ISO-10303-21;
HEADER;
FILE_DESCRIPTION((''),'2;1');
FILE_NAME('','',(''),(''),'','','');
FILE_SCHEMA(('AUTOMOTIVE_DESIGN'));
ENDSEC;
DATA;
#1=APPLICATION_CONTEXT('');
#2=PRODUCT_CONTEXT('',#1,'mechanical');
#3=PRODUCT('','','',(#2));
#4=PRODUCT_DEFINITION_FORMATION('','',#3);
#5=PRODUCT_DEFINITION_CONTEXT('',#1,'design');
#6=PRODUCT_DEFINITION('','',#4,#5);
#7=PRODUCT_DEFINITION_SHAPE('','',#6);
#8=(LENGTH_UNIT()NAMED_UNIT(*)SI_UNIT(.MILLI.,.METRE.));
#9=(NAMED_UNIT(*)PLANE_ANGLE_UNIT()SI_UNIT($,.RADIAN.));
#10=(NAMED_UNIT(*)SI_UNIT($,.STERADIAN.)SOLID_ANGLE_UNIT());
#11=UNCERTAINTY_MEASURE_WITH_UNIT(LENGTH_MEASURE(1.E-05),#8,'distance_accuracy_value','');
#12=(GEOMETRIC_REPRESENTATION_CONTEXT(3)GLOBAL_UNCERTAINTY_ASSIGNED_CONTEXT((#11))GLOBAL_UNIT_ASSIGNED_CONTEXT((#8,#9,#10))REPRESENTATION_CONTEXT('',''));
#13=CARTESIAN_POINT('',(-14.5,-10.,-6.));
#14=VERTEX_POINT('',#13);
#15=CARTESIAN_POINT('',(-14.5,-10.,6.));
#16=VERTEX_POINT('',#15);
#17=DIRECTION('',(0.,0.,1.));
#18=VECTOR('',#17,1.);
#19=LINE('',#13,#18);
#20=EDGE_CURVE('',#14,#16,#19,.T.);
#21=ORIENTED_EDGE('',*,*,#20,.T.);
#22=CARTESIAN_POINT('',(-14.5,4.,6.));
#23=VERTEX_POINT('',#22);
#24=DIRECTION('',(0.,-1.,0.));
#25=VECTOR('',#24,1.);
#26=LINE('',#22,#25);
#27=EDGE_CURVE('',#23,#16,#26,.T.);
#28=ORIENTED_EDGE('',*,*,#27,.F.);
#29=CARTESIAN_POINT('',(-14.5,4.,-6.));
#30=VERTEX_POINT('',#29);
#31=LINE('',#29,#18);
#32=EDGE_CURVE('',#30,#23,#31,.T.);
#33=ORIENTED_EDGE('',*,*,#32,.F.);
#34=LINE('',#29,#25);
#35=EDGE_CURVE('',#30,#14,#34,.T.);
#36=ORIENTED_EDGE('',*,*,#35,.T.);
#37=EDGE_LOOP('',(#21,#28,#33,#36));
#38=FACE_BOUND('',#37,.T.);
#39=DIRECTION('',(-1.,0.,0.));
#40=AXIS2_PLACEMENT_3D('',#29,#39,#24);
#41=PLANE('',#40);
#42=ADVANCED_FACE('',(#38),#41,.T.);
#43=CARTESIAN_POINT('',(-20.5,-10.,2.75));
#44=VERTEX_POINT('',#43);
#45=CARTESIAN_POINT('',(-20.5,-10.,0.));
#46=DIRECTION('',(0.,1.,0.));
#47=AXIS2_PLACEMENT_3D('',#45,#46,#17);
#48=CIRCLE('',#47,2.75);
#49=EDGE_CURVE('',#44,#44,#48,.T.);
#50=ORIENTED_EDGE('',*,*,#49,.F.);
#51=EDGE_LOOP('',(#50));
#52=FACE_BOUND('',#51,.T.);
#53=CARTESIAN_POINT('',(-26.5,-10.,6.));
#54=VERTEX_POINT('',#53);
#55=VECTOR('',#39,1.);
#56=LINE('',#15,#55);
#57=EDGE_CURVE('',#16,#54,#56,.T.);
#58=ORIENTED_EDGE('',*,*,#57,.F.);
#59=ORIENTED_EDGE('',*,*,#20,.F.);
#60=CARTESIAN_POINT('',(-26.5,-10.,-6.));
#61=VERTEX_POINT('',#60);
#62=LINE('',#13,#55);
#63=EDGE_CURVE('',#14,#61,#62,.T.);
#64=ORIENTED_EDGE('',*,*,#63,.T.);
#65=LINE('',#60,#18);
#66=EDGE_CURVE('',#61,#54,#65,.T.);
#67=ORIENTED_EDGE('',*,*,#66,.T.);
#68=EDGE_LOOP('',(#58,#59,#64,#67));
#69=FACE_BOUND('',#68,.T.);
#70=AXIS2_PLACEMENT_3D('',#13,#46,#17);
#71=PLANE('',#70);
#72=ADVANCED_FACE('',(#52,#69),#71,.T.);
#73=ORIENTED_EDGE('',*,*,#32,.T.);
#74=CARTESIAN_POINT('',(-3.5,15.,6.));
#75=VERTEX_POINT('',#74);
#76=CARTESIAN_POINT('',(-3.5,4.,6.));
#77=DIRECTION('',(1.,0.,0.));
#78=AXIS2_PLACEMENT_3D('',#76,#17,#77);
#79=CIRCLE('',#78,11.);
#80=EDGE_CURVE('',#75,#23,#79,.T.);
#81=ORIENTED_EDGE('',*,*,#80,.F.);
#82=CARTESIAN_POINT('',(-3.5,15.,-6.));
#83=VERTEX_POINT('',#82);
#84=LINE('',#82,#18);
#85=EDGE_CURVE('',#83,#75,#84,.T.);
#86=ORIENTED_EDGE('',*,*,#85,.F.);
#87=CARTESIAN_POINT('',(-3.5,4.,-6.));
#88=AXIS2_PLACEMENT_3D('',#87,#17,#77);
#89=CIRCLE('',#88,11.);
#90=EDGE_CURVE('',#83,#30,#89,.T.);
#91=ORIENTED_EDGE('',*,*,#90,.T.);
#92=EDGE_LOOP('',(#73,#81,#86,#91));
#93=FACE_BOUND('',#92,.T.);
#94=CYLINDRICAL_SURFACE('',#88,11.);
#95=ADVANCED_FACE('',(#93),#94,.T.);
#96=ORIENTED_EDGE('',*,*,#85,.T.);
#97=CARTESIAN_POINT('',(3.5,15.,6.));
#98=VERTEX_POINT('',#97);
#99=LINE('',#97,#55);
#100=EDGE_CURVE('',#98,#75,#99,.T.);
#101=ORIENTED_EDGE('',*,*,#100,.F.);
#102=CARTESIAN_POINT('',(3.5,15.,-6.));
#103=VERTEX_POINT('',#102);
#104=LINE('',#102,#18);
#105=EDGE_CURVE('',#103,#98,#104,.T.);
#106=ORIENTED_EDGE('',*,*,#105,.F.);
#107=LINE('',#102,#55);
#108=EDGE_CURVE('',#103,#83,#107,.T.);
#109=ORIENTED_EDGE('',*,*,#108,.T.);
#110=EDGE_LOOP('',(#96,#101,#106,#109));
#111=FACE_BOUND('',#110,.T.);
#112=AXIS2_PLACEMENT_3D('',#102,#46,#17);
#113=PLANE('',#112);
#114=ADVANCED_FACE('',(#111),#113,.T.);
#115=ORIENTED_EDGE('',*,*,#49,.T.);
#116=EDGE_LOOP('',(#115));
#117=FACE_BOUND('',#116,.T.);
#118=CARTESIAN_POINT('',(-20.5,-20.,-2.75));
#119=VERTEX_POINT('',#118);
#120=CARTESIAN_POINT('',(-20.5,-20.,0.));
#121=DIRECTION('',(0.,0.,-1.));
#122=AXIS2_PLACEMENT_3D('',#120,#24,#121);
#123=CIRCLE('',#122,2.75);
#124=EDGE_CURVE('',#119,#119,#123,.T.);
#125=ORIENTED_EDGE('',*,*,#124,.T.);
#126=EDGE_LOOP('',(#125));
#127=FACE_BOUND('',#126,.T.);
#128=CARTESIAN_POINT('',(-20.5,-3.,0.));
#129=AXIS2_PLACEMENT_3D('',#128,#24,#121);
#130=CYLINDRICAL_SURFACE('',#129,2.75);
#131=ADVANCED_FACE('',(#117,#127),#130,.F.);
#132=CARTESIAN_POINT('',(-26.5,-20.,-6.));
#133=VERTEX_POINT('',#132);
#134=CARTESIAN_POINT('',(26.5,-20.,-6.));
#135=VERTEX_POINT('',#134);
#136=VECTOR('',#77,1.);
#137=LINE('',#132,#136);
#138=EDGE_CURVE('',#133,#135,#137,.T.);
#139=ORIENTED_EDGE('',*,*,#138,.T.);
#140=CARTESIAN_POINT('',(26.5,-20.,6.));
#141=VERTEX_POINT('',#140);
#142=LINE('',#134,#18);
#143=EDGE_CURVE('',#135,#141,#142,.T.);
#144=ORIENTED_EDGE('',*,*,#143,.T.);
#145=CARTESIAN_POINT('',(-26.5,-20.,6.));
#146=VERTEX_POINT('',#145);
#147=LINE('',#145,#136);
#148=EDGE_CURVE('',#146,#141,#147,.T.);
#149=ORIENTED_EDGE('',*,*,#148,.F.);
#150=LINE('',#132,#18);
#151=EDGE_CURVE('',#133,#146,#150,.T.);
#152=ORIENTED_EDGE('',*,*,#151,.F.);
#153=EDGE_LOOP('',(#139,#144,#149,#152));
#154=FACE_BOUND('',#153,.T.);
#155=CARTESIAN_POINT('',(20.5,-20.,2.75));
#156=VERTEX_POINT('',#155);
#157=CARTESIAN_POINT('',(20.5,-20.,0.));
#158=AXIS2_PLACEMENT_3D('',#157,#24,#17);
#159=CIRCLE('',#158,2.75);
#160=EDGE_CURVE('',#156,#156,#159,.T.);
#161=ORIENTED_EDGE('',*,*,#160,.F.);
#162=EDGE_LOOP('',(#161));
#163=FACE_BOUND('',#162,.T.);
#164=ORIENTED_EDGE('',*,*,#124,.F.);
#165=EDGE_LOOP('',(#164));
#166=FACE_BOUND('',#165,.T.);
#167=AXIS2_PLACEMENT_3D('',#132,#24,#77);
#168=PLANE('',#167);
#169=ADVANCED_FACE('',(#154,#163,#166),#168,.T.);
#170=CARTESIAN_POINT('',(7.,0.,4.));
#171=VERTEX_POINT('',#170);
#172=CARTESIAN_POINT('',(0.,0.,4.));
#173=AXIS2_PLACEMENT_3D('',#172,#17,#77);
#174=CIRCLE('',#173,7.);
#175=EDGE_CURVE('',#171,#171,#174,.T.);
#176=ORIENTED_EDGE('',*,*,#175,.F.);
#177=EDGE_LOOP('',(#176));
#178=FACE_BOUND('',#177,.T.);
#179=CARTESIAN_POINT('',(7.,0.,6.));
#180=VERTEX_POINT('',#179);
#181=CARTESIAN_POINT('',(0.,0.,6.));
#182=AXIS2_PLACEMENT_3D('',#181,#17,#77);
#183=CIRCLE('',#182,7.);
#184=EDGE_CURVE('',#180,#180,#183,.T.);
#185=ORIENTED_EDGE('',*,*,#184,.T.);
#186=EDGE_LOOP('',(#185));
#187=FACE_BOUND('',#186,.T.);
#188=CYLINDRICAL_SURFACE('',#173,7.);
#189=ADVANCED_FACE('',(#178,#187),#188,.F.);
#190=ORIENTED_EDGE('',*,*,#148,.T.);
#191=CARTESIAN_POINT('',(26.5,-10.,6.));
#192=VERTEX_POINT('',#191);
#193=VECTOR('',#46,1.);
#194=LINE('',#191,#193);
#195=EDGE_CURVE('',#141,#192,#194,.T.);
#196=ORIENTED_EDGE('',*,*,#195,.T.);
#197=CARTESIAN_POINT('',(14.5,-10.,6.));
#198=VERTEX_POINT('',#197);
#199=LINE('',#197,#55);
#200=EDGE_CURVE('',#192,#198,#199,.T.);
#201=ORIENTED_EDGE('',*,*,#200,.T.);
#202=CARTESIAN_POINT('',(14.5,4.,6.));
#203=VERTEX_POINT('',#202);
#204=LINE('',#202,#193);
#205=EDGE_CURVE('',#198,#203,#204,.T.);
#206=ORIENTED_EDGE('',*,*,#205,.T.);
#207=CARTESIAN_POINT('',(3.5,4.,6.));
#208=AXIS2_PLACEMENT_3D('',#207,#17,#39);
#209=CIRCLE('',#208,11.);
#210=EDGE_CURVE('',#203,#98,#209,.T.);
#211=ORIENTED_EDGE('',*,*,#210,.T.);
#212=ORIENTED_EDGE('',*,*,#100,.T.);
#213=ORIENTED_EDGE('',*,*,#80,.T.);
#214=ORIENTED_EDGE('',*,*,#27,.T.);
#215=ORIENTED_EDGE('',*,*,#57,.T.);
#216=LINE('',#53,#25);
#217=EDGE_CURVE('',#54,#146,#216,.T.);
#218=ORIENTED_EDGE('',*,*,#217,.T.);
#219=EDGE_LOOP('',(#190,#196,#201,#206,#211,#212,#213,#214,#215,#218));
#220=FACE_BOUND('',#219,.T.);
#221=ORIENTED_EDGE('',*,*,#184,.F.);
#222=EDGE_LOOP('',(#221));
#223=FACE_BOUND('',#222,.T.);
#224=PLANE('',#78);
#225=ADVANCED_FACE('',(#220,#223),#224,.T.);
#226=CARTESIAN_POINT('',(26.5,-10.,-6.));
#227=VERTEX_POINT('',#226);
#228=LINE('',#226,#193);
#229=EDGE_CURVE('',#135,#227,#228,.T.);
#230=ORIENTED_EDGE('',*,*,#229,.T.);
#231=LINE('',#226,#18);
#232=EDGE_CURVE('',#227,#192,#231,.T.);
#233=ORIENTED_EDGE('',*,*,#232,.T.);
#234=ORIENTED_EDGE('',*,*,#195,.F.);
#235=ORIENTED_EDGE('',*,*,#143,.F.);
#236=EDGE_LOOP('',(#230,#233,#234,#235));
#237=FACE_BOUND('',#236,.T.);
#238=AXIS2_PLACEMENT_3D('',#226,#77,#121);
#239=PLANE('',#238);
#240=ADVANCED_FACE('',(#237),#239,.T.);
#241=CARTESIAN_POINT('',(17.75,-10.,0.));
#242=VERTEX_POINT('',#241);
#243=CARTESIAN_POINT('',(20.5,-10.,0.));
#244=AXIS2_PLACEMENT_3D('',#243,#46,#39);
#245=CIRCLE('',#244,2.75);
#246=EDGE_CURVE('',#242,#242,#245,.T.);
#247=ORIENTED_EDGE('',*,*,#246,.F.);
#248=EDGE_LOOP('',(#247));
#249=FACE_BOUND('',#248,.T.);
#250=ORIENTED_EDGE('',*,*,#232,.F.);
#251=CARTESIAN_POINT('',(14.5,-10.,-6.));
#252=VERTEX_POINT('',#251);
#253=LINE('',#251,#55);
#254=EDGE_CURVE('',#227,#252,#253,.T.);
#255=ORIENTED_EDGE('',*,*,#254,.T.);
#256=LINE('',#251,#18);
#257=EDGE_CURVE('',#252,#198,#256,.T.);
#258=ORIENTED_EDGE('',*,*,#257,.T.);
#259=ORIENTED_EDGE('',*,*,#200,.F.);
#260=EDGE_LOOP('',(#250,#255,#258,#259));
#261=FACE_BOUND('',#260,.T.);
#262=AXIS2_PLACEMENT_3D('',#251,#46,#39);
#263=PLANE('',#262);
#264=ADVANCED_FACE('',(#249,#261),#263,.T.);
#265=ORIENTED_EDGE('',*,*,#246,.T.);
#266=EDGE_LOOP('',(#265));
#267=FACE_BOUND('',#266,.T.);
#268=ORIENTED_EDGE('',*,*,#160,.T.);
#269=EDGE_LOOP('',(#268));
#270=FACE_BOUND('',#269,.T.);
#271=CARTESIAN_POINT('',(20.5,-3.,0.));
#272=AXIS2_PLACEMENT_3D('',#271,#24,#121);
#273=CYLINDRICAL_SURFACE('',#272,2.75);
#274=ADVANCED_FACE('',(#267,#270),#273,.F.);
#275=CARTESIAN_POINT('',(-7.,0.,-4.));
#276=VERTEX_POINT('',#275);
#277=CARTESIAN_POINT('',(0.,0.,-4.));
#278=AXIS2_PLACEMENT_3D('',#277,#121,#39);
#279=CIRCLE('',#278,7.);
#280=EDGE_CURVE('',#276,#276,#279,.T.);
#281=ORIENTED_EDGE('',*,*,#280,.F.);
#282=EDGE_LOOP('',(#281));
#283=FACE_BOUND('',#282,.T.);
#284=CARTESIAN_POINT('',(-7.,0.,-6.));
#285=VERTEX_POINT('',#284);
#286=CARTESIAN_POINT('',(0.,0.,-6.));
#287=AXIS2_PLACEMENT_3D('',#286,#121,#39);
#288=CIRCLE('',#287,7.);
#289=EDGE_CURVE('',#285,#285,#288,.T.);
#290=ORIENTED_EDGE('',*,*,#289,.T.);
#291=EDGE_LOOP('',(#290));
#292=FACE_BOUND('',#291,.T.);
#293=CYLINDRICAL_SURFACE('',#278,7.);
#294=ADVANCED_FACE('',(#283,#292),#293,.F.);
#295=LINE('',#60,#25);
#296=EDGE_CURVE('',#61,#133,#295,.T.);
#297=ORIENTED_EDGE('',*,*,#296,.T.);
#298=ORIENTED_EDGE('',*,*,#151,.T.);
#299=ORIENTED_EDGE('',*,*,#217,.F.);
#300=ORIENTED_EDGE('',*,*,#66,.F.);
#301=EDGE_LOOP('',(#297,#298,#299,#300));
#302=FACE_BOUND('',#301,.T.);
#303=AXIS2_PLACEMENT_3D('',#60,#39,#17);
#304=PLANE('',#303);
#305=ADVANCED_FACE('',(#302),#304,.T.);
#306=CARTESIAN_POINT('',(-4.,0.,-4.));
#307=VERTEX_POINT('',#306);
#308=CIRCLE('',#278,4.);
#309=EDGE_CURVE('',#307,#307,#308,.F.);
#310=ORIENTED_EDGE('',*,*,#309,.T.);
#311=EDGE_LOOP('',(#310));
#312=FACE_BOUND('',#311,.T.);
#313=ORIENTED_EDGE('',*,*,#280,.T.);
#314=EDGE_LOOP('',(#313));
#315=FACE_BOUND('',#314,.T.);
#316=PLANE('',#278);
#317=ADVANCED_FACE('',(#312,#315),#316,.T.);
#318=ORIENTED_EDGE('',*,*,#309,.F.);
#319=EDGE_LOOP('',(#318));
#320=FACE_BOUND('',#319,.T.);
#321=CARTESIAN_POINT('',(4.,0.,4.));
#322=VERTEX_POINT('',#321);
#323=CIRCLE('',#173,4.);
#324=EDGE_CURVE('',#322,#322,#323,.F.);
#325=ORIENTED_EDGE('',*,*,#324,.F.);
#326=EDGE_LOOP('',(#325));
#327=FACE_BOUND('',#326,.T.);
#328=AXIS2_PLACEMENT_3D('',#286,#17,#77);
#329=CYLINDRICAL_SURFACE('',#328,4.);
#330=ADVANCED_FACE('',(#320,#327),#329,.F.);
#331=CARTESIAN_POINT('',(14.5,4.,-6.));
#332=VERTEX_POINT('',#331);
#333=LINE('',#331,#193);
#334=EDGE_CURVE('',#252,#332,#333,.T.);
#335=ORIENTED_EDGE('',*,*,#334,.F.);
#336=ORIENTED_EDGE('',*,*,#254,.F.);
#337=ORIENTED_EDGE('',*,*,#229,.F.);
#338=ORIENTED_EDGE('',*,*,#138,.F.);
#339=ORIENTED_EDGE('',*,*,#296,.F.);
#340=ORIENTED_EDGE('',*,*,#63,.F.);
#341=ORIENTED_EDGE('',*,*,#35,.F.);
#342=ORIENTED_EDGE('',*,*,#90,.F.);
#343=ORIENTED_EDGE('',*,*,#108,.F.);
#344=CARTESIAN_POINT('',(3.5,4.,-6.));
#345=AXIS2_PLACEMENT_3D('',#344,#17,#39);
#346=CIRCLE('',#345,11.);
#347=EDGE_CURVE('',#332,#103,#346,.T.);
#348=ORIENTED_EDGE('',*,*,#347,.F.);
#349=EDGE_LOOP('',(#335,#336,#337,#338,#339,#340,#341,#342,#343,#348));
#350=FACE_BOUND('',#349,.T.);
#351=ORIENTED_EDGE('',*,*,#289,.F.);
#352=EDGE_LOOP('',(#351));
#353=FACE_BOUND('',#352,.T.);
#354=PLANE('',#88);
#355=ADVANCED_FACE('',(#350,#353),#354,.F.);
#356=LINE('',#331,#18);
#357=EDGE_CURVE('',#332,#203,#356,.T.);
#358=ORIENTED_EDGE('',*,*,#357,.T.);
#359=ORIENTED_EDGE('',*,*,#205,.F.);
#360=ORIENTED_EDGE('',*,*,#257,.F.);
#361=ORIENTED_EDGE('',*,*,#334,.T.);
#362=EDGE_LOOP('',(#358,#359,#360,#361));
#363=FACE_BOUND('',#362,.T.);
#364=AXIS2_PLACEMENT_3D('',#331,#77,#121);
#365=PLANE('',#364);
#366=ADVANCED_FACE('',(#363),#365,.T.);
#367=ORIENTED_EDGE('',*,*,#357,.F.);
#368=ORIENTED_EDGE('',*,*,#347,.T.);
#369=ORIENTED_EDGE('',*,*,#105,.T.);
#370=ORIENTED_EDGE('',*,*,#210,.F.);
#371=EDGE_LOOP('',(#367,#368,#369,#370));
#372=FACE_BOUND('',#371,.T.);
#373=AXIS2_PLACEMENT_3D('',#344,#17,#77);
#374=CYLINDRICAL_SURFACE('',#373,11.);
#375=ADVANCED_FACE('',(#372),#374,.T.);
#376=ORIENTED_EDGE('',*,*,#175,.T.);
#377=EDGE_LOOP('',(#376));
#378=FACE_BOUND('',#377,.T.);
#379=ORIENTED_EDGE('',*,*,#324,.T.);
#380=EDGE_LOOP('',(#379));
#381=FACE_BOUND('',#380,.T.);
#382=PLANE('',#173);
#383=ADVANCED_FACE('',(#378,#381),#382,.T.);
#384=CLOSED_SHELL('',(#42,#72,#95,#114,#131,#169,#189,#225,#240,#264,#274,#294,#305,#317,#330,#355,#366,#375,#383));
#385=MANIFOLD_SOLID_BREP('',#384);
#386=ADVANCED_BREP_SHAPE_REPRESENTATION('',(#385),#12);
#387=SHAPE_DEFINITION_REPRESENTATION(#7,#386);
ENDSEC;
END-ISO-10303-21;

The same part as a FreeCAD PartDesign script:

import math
import FreeCAD as App
import Part
import Sketcher

V = App.Vector
Q = App.Units.Quantity

doc = App.newDocument("Part")
body = doc.addObject("PartDesign::Body", "Body")

sketch1 = doc.addObject("Sketcher::SketchObject", "Sketch")
body.addObject(sketch1)
sketch1.AttachmentSupport = (doc.XY_Plane, [""])
sketch1.MapMode = "FlatFace"
sketch1.addGeometry([
    Part.LineSegment(V(3.5, 15, 0), V(-3.5, 15, 0)),
    Part.ArcOfCircle(Part.Circle(V(-3.5, 4, 0), V(0, 0, 1), 11), math.radians(90), math.radians(180)),
    Part.LineSegment(V(-14.5, 4, 0), V(-14.5, -10, 0)),
    Part.LineSegment(V(-14.5, -10, 0), V(-26.5, -10, 0)),
    Part.LineSegment(V(-26.5, -10, 0), V(-26.5, -20, 0)),
    Part.LineSegment(V(-26.5, -20, 0), V(26.5, -20, 0)),
    Part.LineSegment(V(26.5, -20, 0), V(26.5, -10, 0)),
    Part.LineSegment(V(26.5, -10, 0), V(14.5, -10, 0)),
    Part.LineSegment(V(14.5, -10, 0), V(14.5, 4, 0)),
    Part.ArcOfCircle(Part.Circle(V(3.5, 4, 0), V(0, 0, 1), 11), math.radians(0), math.radians(90)),
    Part.Circle(V(0, 0, 0), V(0, 0, 1), 4),
], False)
sketch1.addConstraint([
    Sketcher.Constraint("Tangent", 0, 2, 1, 1),
    Sketcher.Constraint("Tangent", 1, 2, 2, 1),
    Sketcher.Constraint("Coincident", 2, 2, 3, 1),
    Sketcher.Constraint("Coincident", 3, 2, 4, 1),
    Sketcher.Constraint("Coincident", 4, 2, 5, 1),
    Sketcher.Constraint("Coincident", 5, 2, 6, 1),
    Sketcher.Constraint("Coincident", 6, 2, 7, 1),
    Sketcher.Constraint("Coincident", 7, 2, 8, 1),
    Sketcher.Constraint("Tangent", 8, 2, 9, 1),
    Sketcher.Constraint("Tangent", 9, 2, 0, 1),
    Sketcher.Constraint("Horizontal", 0),
    Sketcher.Constraint("Vertical", 2),
    Sketcher.Constraint("Horizontal", 3),
    Sketcher.Constraint("Vertical", 4),
    Sketcher.Constraint("Horizontal", 5),
    Sketcher.Constraint("Vertical", 6),
    Sketcher.Constraint("Horizontal", 7),
    Sketcher.Constraint("Vertical", 8),
    Sketcher.Constraint("Coincident", 10, 3, -1, 1),
    Sketcher.Constraint("Equal", 1, 9),
    Sketcher.Constraint("Symmetric", 3, 2, 6, 2, -2),
    Sketcher.Constraint("Equal", 3, 7),
    Sketcher.Constraint("Diameter", 10, Q("8 mm")),
    Sketcher.Constraint("Radius", 1, Q("11 mm")),
    Sketcher.Constraint("DistanceX", 0, 2, 0, 1, Q("7 mm")),
    Sketcher.Constraint("DistanceX", 3, 2, 3, 1, Q("12 mm")),
    Sketcher.Constraint("DistanceY", 2, 2, 2, 1, Q("14 mm")),
    Sketcher.Constraint("DistanceY", 4, 2, 4, 1, Q("10 mm")),
    Sketcher.Constraint("DistanceY", -1, 1, 1, 3, Q("4 mm")),
])
pad1 = doc.addObject("PartDesign::Pad", "Pad")
body.addObject(pad1)
pad1.Profile = sketch1
pad1.Type = "TwoLengths"
pad1.Length = 6
pad1.Length2 = 6

sketch2 = doc.addObject("Sketcher::SketchObject", "Sketch001")
body.addObject(sketch2)
sketch2.AttachmentSupport = (doc.XY_Plane, [""])
sketch2.MapMode = "FlatFace"
sketch2.AttachmentOffset = App.Placement(V(0, 0, 6), App.Rotation())
sketch2.addGeometry(Part.Circle(V(0, 0, 0), V(0, 0, 1), 7), False)
sketch2.addConstraint([
    Sketcher.Constraint("Coincident", 0, 3, -1, 1),
    Sketcher.Constraint("Diameter", 0, Q("14 mm")),
])
pocket1 = doc.addObject("PartDesign::Pocket", "Pocket")
body.addObject(pocket1)
pocket1.Profile = sketch2
pocket1.Length = 2

sketch3 = doc.addObject("Sketcher::SketchObject", "Sketch002")
body.addObject(sketch3)
sketch3.AttachmentSupport = (doc.XY_Plane, [""])
sketch3.MapMode = "FlatFace"
sketch3.AttachmentOffset = App.Placement(V(0, 0, -4), App.Rotation())
sketch3.addGeometry(Part.Circle(V(0, 0, 0), V(0, 0, 1), 7), False)
sketch3.addConstraint([
    Sketcher.Constraint("Coincident", 0, 3, -1, 1),
    Sketcher.Constraint("Diameter", 0, Q("14 mm")),
])
pocket2 = doc.addObject("PartDesign::Pocket", "Pocket001")
body.addObject(pocket2)
pocket2.Profile = sketch3
pocket2.Length = 2

sketch4 = doc.addObject("Sketcher::SketchObject", "Sketch003")
body.addObject(sketch4)
sketch4.AttachmentSupport = (doc.XZ_Plane, [""])
sketch4.MapMode = "FlatFace"
sketch4.AttachmentOffset = App.Placement(V(0, 0, 20), App.Rotation())
sketch4.addGeometry([
    Part.Circle(V(-20.5, 0, 0), V(0, 0, 1), 2.75),
    Part.Circle(V(20.5, 0, 0), V(0, 0, 1), 2.75),
], False)
sketch4.addConstraint([
    Sketcher.Constraint("Equal", 0, 1),
    Sketcher.Constraint("Symmetric", 0, 3, 1, 3, -1, 1),
    Sketcher.Constraint("PointOnObject", 0, 3, -1),
    Sketcher.Constraint("Diameter", 0, Q("5.5 mm")),
    Sketcher.Constraint("DistanceX", 0, 3, 1, 3, Q("41 mm")),
])
pocket3 = doc.addObject("PartDesign::Pocket", "Pocket002")
body.addObject(pocket3)
pocket3.Profile = sketch4
pocket3.Length = 17

doc.recompute()
